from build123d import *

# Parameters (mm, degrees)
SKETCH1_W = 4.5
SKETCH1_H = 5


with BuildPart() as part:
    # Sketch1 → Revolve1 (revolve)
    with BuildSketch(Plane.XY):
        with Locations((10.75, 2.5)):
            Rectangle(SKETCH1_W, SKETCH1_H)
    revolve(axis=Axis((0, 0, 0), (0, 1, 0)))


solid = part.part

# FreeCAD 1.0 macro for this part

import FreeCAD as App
import Part
import Sketcher

V = App.Vector
Q = App.Units.Quantity

doc = App.newDocument("Part")
body = doc.addObject("PartDesign::Body", "Body")

# Sketch on XY plane
sketch1 = doc.addObject("Sketcher::SketchObject", "Sketch")
body.addObject(sketch1)
sketch1.AttachmentSupport = (doc.XY_Plane, [""])
sketch1.MapMode = "FlatFace"
sketch1.addGeometry([
    Part.LineSegment(V(8.5, 5, 0), V(8.5, 0, 0)),
    Part.LineSegment(V(8.5, 0, 0), V(13, 0, 0)),
    Part.LineSegment(V(13, 0, 0), V(13, 5, 0)),
    Part.LineSegment(V(13, 5, 0), V(8.5, 5, 0)),
], False)
sketch1.addConstraint([
    Sketcher.Constraint("Coincident", 0, 2, 1, 1),
    Sketcher.Constraint("Coincident", 1, 2, 2, 1),
    Sketcher.Constraint("Coincident", 2, 2, 3, 1),
    Sketcher.Constraint("Coincident", 3, 2, 0, 1),
    Sketcher.Constraint("Vertical", 0),
    Sketcher.Constraint("Horizontal", 1),
    Sketcher.Constraint("Vertical", 2),
    Sketcher.Constraint("Horizontal", 3),
    Sketcher.Constraint("PointOnObject", 0, 2, -1),
    Sketcher.Constraint("DistanceY", 0, 2, 0, 1, Q("5 mm")),
    Sketcher.Constraint("DistanceX", 1, 1, 1, 2, Q("4.5 mm")),
    Sketcher.Constraint("DistanceX", -1, 1, 1, 2, Q("13 mm")),
])
revolution = doc.addObject("PartDesign::Revolution", "Revolution")
body.addObject(revolution)
revolution.Profile = sketch1
revolution.ReferenceAxis = (sketch1, ["V_Axis"])
revolution.Angle = 360

doc.recompute()
